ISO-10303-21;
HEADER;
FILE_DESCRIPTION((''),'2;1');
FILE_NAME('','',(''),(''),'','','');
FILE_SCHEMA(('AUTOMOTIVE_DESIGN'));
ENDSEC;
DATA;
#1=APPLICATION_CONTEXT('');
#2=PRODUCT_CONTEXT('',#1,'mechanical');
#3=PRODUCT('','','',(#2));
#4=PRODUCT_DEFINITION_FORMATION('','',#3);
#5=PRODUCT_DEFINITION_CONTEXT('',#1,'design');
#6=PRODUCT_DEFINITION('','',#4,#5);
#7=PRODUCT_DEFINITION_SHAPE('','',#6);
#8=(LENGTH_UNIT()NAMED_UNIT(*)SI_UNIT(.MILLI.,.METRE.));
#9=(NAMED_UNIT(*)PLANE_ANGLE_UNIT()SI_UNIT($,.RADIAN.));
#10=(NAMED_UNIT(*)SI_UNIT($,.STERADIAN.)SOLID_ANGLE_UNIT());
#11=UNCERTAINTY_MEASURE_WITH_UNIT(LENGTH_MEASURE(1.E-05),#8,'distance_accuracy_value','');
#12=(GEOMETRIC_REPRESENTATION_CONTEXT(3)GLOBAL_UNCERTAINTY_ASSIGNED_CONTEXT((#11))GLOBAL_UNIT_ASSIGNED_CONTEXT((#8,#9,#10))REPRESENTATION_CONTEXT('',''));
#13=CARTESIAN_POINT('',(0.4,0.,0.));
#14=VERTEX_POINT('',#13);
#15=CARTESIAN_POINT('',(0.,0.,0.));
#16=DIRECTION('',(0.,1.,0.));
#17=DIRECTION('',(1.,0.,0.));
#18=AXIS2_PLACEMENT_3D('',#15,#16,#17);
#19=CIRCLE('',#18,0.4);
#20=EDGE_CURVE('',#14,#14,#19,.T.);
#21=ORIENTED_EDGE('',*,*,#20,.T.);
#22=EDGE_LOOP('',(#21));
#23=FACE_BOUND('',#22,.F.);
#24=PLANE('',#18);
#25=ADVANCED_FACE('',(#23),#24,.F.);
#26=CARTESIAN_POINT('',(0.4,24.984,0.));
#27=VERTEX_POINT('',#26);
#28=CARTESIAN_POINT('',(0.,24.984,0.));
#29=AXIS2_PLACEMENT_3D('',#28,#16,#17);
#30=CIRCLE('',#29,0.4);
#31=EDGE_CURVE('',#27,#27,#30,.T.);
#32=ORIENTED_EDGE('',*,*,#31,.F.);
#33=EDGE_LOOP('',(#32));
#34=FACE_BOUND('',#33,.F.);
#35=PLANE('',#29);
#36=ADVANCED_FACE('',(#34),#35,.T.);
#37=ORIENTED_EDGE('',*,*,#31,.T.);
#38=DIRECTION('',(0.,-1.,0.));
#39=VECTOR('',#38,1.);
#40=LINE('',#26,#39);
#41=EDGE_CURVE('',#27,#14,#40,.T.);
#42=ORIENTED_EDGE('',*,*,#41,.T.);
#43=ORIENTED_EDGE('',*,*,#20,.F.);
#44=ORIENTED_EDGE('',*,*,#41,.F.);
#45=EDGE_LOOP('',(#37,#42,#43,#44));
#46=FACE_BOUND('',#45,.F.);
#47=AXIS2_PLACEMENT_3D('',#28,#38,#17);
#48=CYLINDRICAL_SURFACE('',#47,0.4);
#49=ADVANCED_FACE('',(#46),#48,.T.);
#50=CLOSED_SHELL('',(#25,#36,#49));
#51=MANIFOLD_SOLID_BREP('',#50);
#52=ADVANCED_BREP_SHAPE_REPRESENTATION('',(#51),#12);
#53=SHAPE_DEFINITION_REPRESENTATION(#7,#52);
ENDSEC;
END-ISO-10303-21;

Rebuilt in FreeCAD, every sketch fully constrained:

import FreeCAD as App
import Part
import Sketcher
from FreeCAD import Vector


def add_polygon(sketch, points):
    """Adds a closed chain of lines whose ends are joined by coincident constraints."""
    first, n = sketch.GeometryCount, len(points)
    for a, b in zip(points, points[1:] + points[:1]):
        sketch.addGeometry(Part.LineSegment(App.Vector(*a, 0), App.Vector(*b, 0)), False)
    for i in range(n):
        sketch.addConstraint(Sketcher.Constraint("Coincident", first + i, 2, first + (i + 1) % n, 1))

doc = App.newDocument("Part")
body = doc.addObject("PartDesign::Body", "Body")

# Sketch on XY plane
sketch1 = doc.addObject("Sketcher::SketchObject", "Sketch")
body.addObject(sketch1)
sketch1.AttachmentSupport = (doc.XY_Plane, [""])
sketch1.MapMode = "FlatFace"
add_polygon(sketch1, [(0, 24.98), (0, 0), (0.4, 0), (0.4, 24.98)])  # lines 0-3
sketch1.addConstraint([
    Sketcher.Constraint("Vertical", 0),
    Sketcher.Constraint("Horizontal", 1),
    Sketcher.Constraint("Vertical", 2),
    Sketcher.Constraint("Horizontal", 3),
    Sketcher.Constraint("Coincident", 0, 2, -1, 1),
    Sketcher.Constraint("DistanceX", 1, 1, 1, 2, 0.4),
    Sketcher.Constraint("DistanceY", 0, 2, 0, 1, 24.984),
])
revolution = doc.addObject("PartDesign::Revolution", "Revolution")
body.addObject(revolution)
revolution.Profile = sketch1
revolution.ReferenceAxis = (sketch1, ["V_Axis"])
revolution.Angle = 360

doc.recompute()
